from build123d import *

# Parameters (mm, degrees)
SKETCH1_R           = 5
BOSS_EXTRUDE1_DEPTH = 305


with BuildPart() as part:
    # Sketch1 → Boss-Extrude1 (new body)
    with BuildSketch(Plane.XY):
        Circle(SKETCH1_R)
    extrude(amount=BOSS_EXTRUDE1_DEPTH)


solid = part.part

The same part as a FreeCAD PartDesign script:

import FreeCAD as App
import Part
import Sketcher

V = App.Vector
Q = App.Units.Quantity

doc = App.newDocument("Part")
body = doc.addObject("PartDesign::Body", "Body")

# Sketch on XY plane
sketch1 = doc.addObject("Sketcher::SketchObject", "Sketch")
body.addObject(sketch1)
sketch1.AttachmentSupport = (doc.XY_Plane, [""])
sketch1.MapMode = "FlatFace"
sketch1.addGeometry(Part.Circle(V(0, 0, 0), V(0, 0, 1), 5), False)
sketch1.addConstraint([
    Sketcher.Constraint("Coincident", 0, 3, -1, 1),
    Sketcher.Constraint("Diameter", 0, Q("10 mm")),
])
pad1 = doc.addObject("PartDesign::Pad", "Pad")
body.addObject(pad1)
pad1.Profile = sketch1
pad1.Length = 305

doc.recompute()
